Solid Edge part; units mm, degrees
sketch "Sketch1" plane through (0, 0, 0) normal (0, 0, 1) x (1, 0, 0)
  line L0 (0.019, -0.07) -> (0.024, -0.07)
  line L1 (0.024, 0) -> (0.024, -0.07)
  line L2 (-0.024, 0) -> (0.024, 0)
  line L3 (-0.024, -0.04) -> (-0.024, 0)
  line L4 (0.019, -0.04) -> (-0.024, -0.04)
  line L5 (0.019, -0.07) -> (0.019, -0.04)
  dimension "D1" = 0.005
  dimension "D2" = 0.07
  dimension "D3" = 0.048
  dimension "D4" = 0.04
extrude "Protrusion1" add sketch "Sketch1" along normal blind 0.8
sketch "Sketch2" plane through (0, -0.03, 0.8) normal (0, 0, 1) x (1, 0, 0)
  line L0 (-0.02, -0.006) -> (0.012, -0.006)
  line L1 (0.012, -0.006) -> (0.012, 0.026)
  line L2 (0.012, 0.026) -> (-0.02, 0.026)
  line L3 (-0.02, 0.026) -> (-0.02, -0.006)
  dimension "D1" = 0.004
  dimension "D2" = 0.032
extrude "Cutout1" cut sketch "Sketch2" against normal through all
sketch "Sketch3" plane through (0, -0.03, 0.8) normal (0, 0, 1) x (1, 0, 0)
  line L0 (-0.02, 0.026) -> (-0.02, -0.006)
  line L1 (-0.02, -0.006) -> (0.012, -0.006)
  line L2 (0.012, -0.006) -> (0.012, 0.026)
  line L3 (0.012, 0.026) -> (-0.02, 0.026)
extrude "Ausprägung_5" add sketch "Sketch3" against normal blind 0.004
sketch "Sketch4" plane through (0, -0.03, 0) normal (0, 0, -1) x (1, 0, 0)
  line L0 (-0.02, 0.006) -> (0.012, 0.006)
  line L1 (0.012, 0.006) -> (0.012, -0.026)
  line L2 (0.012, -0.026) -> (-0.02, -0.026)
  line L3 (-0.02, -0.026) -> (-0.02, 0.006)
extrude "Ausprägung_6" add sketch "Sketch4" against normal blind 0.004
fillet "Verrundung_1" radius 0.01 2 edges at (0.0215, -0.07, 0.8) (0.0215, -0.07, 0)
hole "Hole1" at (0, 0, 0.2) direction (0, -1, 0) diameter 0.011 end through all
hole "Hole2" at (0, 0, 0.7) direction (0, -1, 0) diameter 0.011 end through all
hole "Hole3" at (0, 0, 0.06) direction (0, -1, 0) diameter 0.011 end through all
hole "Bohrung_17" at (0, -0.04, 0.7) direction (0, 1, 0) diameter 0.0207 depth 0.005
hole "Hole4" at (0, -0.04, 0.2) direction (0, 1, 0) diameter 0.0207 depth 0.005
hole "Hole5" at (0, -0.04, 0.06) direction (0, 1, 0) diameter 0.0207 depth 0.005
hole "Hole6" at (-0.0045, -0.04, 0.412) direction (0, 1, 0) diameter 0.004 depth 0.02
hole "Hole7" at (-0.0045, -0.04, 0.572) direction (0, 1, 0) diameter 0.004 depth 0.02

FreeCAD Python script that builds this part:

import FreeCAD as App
import Part
import Sketcher

V = App.Vector
Q = App.Units.Quantity


def edges_at(feature, points):
    """Names of the edges that pass closest to the given points."""
    edges = feature.Shape.Edges
    near = lambda p: min(range(len(edges)), key=lambda i: edges[i].distToShape(Part.Vertex(*p))[0])
    return sorted({f"Edge{near(p) + 1}" for p in points})


def add_polygon(sketch, points):
    """Adds a closed chain of lines whose ends are joined by coincident constraints."""
    first, n = sketch.GeometryCount, len(points)
    for a, b in zip(points, points[1:] + points[:1]):
        sketch.addGeometry(Part.LineSegment(App.Vector(*a, 0), App.Vector(*b, 0)), False)
    for i in range(n):
        sketch.addConstraint(Sketcher.Constraint("Coincident", first + i, 2, first + (i + 1) % n, 1))

doc = App.newDocument("Part")
params = doc.addObject("Spreadsheet::Sheet", "Params")
for row, (alias, value) in enumerate([
    ("sketch1_height", "0.03 mm"),
    ("sketch1_height2", "0.07 mm"),
    ("pad1_length", "0.8 mm"),
    ("pad2_length", "0.004 mm"),
    ("pad3_length", "0.004 mm"),
    ("fillet_radius", "0.01 mm"),
    ("hole_diameter", "0.011 mm"),
    ("hole2_diameter", "0.011 mm"),
    ("hole3_diameter", "0.011 mm"),
    ("hole4_diameter", "0.0207 mm"),
    ("hole4_depth", "0.005 mm"),
    ("hole5_diameter", "0.0207 mm"),
    ("hole5_depth", "0.005 mm"),
    ("hole6_diameter", "0.0207 mm"),
    ("hole6_depth", "0.005 mm"),
    ("hole7_diameter", "0.004 mm"),
    ("hole7_depth", "0.02 mm"),
    ("hole8_diameter", "0.004 mm"),
    ("hole8_depth", "0.02 mm"),
], start=1):
    params.set(f"A{row}", alias)
    params.set(f"B{row}", "=" + value)
    params.setAlias(f"B{row}", alias)

body = doc.addObject("PartDesign::Body", "Body")

sketch1 = body.newObject("Sketcher::SketchObject", "Sketch")
sketch1.AttachmentSupport = (doc.getObject("XY_Plane"), [""])
sketch1.MapMode = "FlatFace"
add_polygon(sketch1, [(0.019, -0.04), (0.019, -0.07), (0.024, -0.07), (0.024, 0), (-0.024, 0), (-0.024, -0.04)])
sketch1.addConstraint([
    Sketcher.Constraint("Vertical", 0),
    Sketcher.Constraint("Horizontal", 1),
    Sketcher.Constraint("Vertical", 2),
    Sketcher.Constraint("Horizontal", 3),
    Sketcher.Constraint("Vertical", 4),
    Sketcher.Constraint("Horizontal", 5),
    Sketcher.Constraint("Symmetric", 2, 2, 3, 2, -1, 1),
    Sketcher.Constraint("DistanceX", -1, 1, 0, 2, Q("0.019 mm")),
    Sketcher.Constraint("DistanceX", -1, 1, 1, 2, Q("0.024 mm")),
    Sketcher.Constraint("DistanceY", 0, 2, 0, 1, Q("0.03 mm")),
    Sketcher.Constraint("DistanceY", 2, 1, 2, 2, Q("0.07 mm")),
])
sketch1.setExpression("Constraints[15]", "Params.sketch1_height")
sketch1.setExpression("Constraints[16]", "Params.sketch1_height2")
pad1 = body.newObject("PartDesign::Pad", "Pad")
pad1.Profile = sketch1
pad1.setExpression("Length", "Params.pad1_length")

sketch2 = body.newObject("Sketcher::SketchObject", "Sketch001")
sketch2.AttachmentSupport = (doc.getObject("XY_Plane"), [""])
sketch2.MapMode = "FlatFace"
sketch2.AttachmentOffset = App.Placement(V(0, 0, 0.8), App.Rotation())
add_polygon(sketch2, [(-0.02, -0.004), (-0.02, -0.036), (0.012, -0.036), (0.012, -0.004)])
sketch2.addConstraint([
    Sketcher.Constraint("Vertical", 0),
    Sketcher.Constraint("Horizontal", 1),
    Sketcher.Constraint("Vertical", 2),
    Sketcher.Constraint("Horizontal", 3),
    Sketcher.Constraint("Equal", 3, 0),
    Sketcher.Constraint("DistanceX", 0, 2, -1, 1, Q("0.02 mm")),
    Sketcher.Constraint("DistanceX", 1, 1, 1, 2, Q("0.032 mm")),
    Sketcher.Constraint("DistanceY", 0, 2, -1, 1, Q("0.036 mm")),
])
pocket1 = body.newObject("PartDesign::Pocket", "Pocket")
pocket1.Profile = sketch2
pocket1.Type = "ThroughAll"

sketch3 = body.newObject("Sketcher::SketchObject", "Sketch002")
sketch3.AttachmentSupport = (doc.getObject("XY_Plane"), [""])
sketch3.MapMode = "FlatFace"
sketch3.AttachmentOffset = App.Placement(V(0, 0, 0.8), App.Rotation())
add_polygon(sketch3, [(0.012, -0.004), (-0.02, -0.004), (-0.02, -0.036), (0.012, -0.036)])
sketch3.addConstraint([
    Sketcher.Constraint("Horizontal", 0),
    Sketcher.Constraint("Vertical", 1),
    Sketcher.Constraint("Horizontal", 2),
    Sketcher.Constraint("Vertical", 3),
    Sketcher.Constraint("Equal", 2, 1),
    Sketcher.Constraint("DistanceX", 0, 2, 0, 1, Q("0.032 mm")),
    Sketcher.Constraint("DistanceX", 0, 2, -1, 1, Q("0.02 mm")),
    Sketcher.Constraint("DistanceY", 0, 2, -1, 1, Q("0.004 mm")),
])
pad2 = body.newObject("PartDesign::Pad", "Pad001")
pad2.Profile = sketch3
pad2.setExpression("Length", "Params.pad2_length")
pad2.Reversed = True

sketch4 = body.newObject("Sketcher::SketchObject", "Sketch003")
sketch4.AttachmentSupport = (doc.getObject("XY_Plane"), [""])
sketch4.MapMode = "FlatFace"
add_polygon(sketch4, [(0.012, -0.036), (-0.02, -0.036), (-0.02, -0.004), (0.012, -0.004)])
sketch4.addConstraint([
    Sketcher.Constraint("Horizontal", 0),
    Sketcher.Constraint("Vertical", 1),
    Sketcher.Constraint("Horizontal", 2),
    Sketcher.Constraint("Vertical", 3),
    Sketcher.Constraint("Equal", 2, 1),
    Sketcher.Constraint("DistanceX", 0, 2, 0, 1, Q("0.032 mm")),
    Sketcher.Constraint("DistanceX", 0, 2, -1, 1, Q("0.02 mm")),
    Sketcher.Constraint("DistanceY", 0, 2, -1, 1, Q("0.036 mm")),
])
pad3 = body.newObject("PartDesign::Pad", "Pad002")
pad3.Profile = sketch4
pad3.setExpression("Length", "Params.pad3_length")
doc.recompute()

fillet = body.newObject("PartDesign::Fillet", "Fillet")
fillet.Base = (pad3, edges_at(pad3, [(0.021, -0.07, 0.8), (0.021, -0.07, 0)]))
fillet.setExpression("Radius", "Params.fillet_radius")

sketch5 = body.newObject("Sketcher::SketchObject", "Sketch004")
sketch5.AttachmentSupport = (doc.getObject("XZ_Plane"), [""])
sketch5.MapMode = "FlatFace"
sketch5.addGeometry(Part.Circle(V(0, 0.2, 0), V(0, 0, 1), 0.005), False)
sketch5.addConstraint([
    Sketcher.Constraint("PointOnObject", 0, 3, -2),
    Sketcher.Constraint("Diameter", 0, Q("0.011 mm")),
    Sketcher.Constraint("DistanceY", -1, 1, 0, 3, Q("0.2 mm")),
])
doc.recompute()
hole = body.newObject("PartDesign::Hole", "Hole")
hole.Profile = sketch5
hole.ThreadType = "None"
hole.setExpression("Diameter", "Params.hole_diameter")
hole.DepthType = "ThroughAll"
hole.Reversed = True

sketch6 = body.newObject("Sketcher::SketchObject", "Sketch005")
sketch6.AttachmentSupport = (doc.getObject("XZ_Plane"), [""])
sketch6.MapMode = "FlatFace"
sketch6.addGeometry(Part.Circle(V(0, 0.7, 0), V(0, 0, 1), 0.005), False)
sketch6.addConstraint([
    Sketcher.Constraint("PointOnObject", 0, 3, -2),
    Sketcher.Constraint("Diameter", 0, Q("0.011 mm")),
    Sketcher.Constraint("DistanceY", -1, 1, 0, 3, Q("0.7 mm")),
])
doc.recompute()
hole2 = body.newObject("PartDesign::Hole", "Hole001")
hole2.Profile = sketch6
hole2.ThreadType = "None"
hole2.setExpression("Diameter", "Params.hole2_diameter")
hole2.DepthType = "ThroughAll"
hole2.Reversed = True

sketch7 = body.newObject("Sketcher::SketchObject", "Sketch006")
sketch7.AttachmentSupport = (doc.getObject("XZ_Plane"), [""])
sketch7.MapMode = "FlatFace"
sketch7.addGeometry(Part.Circle(V(0, 0.06, 0), V(0, 0, 1), 0.005), False)
sketch7.addConstraint([
    Sketcher.Constraint("PointOnObject", 0, 3, -2),
    Sketcher.Constraint("Diameter", 0, Q("0.011 mm")),
    Sketcher.Constraint("DistanceY", -1, 1, 0, 3, Q("0.06 mm")),
])
doc.recompute()
hole3 = body.newObject("PartDesign::Hole", "Hole002")
hole3.Profile = sketch7
hole3.ThreadType = "None"
hole3.setExpression("Diameter", "Params.hole3_diameter")
hole3.DepthType = "ThroughAll"
hole3.Reversed = True

sketch8 = body.newObject("Sketcher::SketchObject", "Sketch007")
sketch8.AttachmentSupport = (doc.getObject("XZ_Plane"), [""])
sketch8.MapMode = "FlatFace"
sketch8.AttachmentOffset = App.Placement(V(0, 0, 0.04), App.Rotation())
sketch8.addGeometry(Part.Circle(V(0, 0.7, 0), V(0, 0, 1), 0.01), False)
sketch8.addConstraint([
    Sketcher.Constraint("PointOnObject", 0, 3, -2),
    Sketcher.Constraint("Diameter", 0, Q("0.0207 mm")),
    Sketcher.Constraint("DistanceY", -1, 1, 0, 3, Q("0.7 mm")),
])
doc.recompute()
hole4 = body.newObject("PartDesign::Hole", "Hole003")
hole4.Profile = sketch8
hole4.ThreadType = "None"
hole4.setExpression("Diameter", "Params.hole4_diameter")
hole4.DepthType = "Dimension"
hole4.setExpression("Depth", "Params.hole4_depth")
hole4.DrillPoint = "Flat"

sketch9 = body.newObject("Sketcher::SketchObject", "Sketch008")
sketch9.AttachmentSupport = (doc.getObject("XZ_Plane"), [""])
sketch9.MapMode = "FlatFace"
sketch9.AttachmentOffset = App.Placement(V(0, 0, 0.04), App.Rotation())
sketch9.addGeometry(Part.Circle(V(0, 0.2, 0), V(0, 0, 1), 0.01), False)
sketch9.addConstraint([
    Sketcher.Constraint("PointOnObject", 0, 3, -2),
    Sketcher.Constraint("Diameter", 0, Q("0.0207 mm")),
    Sketcher.Constraint("DistanceY", -1, 1, 0, 3, Q("0.2 mm")),
])
doc.recompute()
hole5 = body.newObject("PartDesign::Hole", "Hole004")
hole5.Profile = sketch9
hole5.ThreadType = "None"
hole5.setExpression("Diameter", "Params.hole5_diameter")
hole5.DepthType = "Dimension"
hole5.setExpression("Depth", "Params.hole5_depth")
hole5.DrillPoint = "Flat"

sketch10 = body.newObject("Sketcher::SketchObject", "Sketch009")
sketch10.AttachmentSupport = (doc.getObject("XZ_Plane"), [""])
sketch10.MapMode = "FlatFace"
sketch10.AttachmentOffset = App.Placement(V(0, 0, 0.04), App.Rotation())
sketch10.addGeometry(Part.Circle(V(0, 0.06, 0), V(0, 0, 1), 0.01), False)
sketch10.addConstraint([
    Sketcher.Constraint("PointOnObject", 0, 3, -2),
    Sketcher.Constraint("Diameter", 0, Q("0.0207 mm")),
    Sketcher.Constraint("DistanceY", -1, 1, 0, 3, Q("0.06 mm")),
])
doc.recompute()
hole6 = body.newObject("PartDesign::Hole", "Hole005")
hole6.Profile = sketch10
hole6.ThreadType = "None"
hole6.setExpression("Diameter", "Params.hole6_diameter")
hole6.DepthType = "Dimension"
hole6.setExpression("Depth", "Params.hole6_depth")
hole6.DrillPoint = "Flat"

sketch11 = body.newObject("Sketcher::SketchObject", "Sketch010")
sketch11.AttachmentSupport = (doc.getObject("XZ_Plane"), [""])
sketch11.MapMode = "FlatFace"
sketch11.AttachmentOffset = App.Placement(V(0, 0, 0.04), App.Rotation())
sketch11.addGeometry(Part.Circle(V(-0.0045, 0.412, 0), V(0, 0, 1), 0.002), False)
sketch11.addConstraint([
    Sketcher.Constraint("Diameter", 0, Q("0.004 mm")),
    Sketcher.Constraint("DistanceY", -1, 1, 0, 3, Q("0.412 mm")),
    Sketcher.Constraint("DistanceX", 0, 3, -1, 1, Q("0.0045 mm")),
])
doc.recompute()
hole7 = body.newObject("PartDesign::Hole", "Hole006")
hole7.Profile = sketch11
hole7.ThreadType = "None"
hole7.setExpression("Diameter", "Params.hole7_diameter")
hole7.DepthType = "Dimension"
hole7.setExpression("Depth", "Params.hole7_depth")
hole7.DrillPoint = "Flat"

sketch12 = body.newObject("Sketcher::SketchObject", "Sketch011")
sketch12.AttachmentSupport = (doc.getObject("XZ_Plane"), [""])
sketch12.MapMode = "FlatFace"
sketch12.AttachmentOffset = App.Placement(V(0, 0, 0.04), App.Rotation())
sketch12.addGeometry(Part.Circle(V(-0.0045, 0.572, 0), V(0, 0, 1), 0.002), False)
sketch12.addConstraint([
    Sketcher.Constraint("Diameter", 0, Q("0.004 mm")),
    Sketcher.Constraint("DistanceY", -1, 1, 0, 3, Q("0.572 mm")),
    Sketcher.Constraint("DistanceX", 0, 3, -1, 1, Q("0.0045 mm")),
])
doc.recompute()
hole8 = body.newObject("PartDesign::Hole", "Hole007")
hole8.Profile = sketch12
hole8.ThreadType = "None"
hole8.setExpression("Diameter", "Params.hole8_diameter")
hole8.DepthType = "Dimension"
hole8.setExpression("Depth", "Params.hole8_depth")
hole8.DrillPoint = "Flat"

doc.recompute()
